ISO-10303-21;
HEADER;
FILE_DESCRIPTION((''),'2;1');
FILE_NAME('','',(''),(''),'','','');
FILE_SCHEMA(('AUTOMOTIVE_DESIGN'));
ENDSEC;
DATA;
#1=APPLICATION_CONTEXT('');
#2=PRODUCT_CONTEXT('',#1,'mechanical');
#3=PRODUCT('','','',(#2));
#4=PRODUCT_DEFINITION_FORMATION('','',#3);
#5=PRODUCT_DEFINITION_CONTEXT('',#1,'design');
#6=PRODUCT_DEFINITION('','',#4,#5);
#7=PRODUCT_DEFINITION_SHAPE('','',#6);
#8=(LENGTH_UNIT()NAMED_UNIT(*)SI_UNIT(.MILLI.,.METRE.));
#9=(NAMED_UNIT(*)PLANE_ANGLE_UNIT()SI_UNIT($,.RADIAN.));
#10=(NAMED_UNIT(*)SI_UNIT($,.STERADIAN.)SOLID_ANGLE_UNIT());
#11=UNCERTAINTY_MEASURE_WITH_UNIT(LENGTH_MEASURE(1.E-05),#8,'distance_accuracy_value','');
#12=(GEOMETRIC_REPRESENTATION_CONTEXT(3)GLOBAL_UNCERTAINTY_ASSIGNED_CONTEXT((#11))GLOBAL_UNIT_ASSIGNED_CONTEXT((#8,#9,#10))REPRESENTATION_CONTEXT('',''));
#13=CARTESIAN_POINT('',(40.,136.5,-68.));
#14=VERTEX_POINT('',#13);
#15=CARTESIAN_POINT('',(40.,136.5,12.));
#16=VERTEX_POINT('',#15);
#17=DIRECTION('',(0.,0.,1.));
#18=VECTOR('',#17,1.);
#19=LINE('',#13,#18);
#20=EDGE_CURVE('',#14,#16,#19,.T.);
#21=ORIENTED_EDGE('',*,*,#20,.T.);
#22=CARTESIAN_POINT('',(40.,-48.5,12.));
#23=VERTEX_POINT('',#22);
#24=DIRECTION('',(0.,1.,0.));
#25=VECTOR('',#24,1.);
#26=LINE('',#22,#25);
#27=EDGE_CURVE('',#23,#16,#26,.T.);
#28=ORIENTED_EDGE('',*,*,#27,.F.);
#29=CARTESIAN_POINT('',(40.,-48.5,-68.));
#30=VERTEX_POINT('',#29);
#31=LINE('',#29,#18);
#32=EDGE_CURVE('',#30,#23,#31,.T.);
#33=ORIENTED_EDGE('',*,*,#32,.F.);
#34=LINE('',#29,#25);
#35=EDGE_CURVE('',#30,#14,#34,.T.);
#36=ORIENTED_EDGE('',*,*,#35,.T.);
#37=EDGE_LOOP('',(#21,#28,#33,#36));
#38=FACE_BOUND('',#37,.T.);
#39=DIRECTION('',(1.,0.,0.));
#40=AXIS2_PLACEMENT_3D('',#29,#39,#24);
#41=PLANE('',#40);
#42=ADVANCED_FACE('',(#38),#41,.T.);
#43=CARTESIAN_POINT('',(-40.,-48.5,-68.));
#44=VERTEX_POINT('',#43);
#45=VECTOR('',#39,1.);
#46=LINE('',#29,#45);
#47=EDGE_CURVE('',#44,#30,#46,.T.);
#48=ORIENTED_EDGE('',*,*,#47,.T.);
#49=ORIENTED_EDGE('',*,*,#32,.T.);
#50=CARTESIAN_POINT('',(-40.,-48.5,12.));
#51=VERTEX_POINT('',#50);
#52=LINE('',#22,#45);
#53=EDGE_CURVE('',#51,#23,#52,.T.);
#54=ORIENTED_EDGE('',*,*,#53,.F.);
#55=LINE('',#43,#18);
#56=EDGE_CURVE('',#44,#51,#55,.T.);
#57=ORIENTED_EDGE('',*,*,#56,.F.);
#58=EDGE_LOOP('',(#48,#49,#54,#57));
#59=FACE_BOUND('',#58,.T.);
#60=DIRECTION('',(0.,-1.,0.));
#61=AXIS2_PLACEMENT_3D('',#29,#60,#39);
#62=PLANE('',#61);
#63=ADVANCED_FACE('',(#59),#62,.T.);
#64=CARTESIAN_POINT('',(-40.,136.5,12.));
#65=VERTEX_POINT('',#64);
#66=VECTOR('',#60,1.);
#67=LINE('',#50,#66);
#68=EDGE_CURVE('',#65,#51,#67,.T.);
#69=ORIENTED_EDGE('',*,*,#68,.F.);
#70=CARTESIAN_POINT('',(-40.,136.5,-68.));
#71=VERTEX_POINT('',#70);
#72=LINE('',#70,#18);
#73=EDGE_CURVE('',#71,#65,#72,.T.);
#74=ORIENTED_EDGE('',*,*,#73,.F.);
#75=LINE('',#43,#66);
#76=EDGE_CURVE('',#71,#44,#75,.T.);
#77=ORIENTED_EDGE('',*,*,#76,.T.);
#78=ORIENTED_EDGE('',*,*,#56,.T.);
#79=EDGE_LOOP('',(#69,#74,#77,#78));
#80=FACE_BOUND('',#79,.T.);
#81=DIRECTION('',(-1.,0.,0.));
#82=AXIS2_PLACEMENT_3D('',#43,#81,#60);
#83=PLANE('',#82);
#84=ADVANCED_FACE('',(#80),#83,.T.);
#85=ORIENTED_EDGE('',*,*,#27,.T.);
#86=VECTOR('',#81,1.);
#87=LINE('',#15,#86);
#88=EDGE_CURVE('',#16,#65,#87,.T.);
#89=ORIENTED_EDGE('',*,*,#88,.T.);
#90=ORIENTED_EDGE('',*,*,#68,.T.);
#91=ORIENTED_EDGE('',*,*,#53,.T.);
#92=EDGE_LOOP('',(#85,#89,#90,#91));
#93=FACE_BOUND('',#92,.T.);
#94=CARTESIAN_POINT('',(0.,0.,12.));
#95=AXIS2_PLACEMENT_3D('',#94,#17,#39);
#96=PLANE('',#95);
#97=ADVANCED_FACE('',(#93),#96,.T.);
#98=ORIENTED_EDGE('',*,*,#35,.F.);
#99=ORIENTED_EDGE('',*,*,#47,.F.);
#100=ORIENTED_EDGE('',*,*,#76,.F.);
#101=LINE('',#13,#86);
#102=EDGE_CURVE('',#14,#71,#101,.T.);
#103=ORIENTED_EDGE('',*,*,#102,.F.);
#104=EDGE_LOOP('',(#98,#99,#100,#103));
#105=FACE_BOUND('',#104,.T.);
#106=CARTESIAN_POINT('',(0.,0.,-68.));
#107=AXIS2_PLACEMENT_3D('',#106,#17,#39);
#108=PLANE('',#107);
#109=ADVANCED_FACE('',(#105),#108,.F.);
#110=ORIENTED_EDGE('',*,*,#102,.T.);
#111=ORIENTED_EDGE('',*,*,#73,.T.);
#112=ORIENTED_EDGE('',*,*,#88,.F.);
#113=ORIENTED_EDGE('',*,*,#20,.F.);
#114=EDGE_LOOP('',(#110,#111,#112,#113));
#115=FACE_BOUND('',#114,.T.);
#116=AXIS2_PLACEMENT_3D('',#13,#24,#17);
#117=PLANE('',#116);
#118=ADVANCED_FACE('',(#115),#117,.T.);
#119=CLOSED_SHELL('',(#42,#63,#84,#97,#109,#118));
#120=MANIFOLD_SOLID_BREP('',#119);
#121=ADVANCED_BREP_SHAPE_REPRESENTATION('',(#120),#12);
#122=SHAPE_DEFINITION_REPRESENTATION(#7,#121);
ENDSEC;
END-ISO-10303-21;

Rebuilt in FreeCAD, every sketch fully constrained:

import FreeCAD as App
import Part
import Sketcher
from FreeCAD import Vector
Q = App.Units.Quantity


def add_polygon(sketch, points):
    """Adds a closed chain of lines whose ends are joined by coincident constraints."""
    first, n = sketch.GeometryCount, len(points)
    for a, b in zip(points, points[1:] + points[:1]):
        sketch.addGeometry(Part.LineSegment(App.Vector(*a, 0), App.Vector(*b, 0)), False)
    for i in range(n):
        sketch.addConstraint(Sketcher.Constraint("Coincident", first + i, 2, first + (i + 1) % n, 1))

doc = App.newDocument("Part")
params = doc.addObject("Spreadsheet::Sheet", "Params")
for row, (alias, value) in enumerate([
    ("sketch1_width", "80 mm"),
    ("sketch1_height", "185 mm"),
    ("pad1_length", "80 mm"),
], start=1):
    params.set(f"A{row}", alias)
    params.set(f"B{row}", "=" + value)
    params.setAlias(f"B{row}", alias)

body = doc.addObject("PartDesign::Body", "Body")

sketch1 = doc.addObject("Sketcher::SketchObject", "Sketch")
body.addObject(sketch1)
sketch1.AttachmentSupport = (doc.XY_Plane, [""])
sketch1.MapMode = "FlatFace"
sketch1.AttachmentOffset = App.Placement(Vector(0, 0, 12), App.Rotation())
add_polygon(sketch1, [(-40, 136), (-40, -48), (40, -48), (40, 136)])
sketch1.addConstraint(Sketcher.Constraint("Vertical", 0))
sketch1.addConstraint(Sketcher.Constraint("Horizontal", 1))
sketch1.addConstraint(Sketcher.Constraint("Vertical", 2))
sketch1.addConstraint(Sketcher.Constraint("Horizontal", 3))
sketch1.addConstraint(Sketcher.Constraint("DistanceX", 1, 1, 1, 2, Q("80 mm")))
sketch1.addConstraint(Sketcher.Constraint("DistanceY", 0, 2, 0, 1, Q("185 mm")))
sketch1.addConstraint(Sketcher.Constraint("DistanceX", 0, 2, -1, 1, Q("40 mm")))
sketch1.addConstraint(Sketcher.Constraint("DistanceY", 0, 2, -1, 1, Q("48.5 mm")))
sketch1.setExpression("Constraints[8]", "Params.sketch1_width")
sketch1.setExpression("Constraints[9]", "Params.sketch1_height")
pad1 = doc.addObject("PartDesign::Pad", "Pad")
body.addObject(pad1)
pad1.Profile = sketch1
pad1.setExpression("Length", "Params.pad1_length")
pad1.Reversed = True

doc.recompute()
